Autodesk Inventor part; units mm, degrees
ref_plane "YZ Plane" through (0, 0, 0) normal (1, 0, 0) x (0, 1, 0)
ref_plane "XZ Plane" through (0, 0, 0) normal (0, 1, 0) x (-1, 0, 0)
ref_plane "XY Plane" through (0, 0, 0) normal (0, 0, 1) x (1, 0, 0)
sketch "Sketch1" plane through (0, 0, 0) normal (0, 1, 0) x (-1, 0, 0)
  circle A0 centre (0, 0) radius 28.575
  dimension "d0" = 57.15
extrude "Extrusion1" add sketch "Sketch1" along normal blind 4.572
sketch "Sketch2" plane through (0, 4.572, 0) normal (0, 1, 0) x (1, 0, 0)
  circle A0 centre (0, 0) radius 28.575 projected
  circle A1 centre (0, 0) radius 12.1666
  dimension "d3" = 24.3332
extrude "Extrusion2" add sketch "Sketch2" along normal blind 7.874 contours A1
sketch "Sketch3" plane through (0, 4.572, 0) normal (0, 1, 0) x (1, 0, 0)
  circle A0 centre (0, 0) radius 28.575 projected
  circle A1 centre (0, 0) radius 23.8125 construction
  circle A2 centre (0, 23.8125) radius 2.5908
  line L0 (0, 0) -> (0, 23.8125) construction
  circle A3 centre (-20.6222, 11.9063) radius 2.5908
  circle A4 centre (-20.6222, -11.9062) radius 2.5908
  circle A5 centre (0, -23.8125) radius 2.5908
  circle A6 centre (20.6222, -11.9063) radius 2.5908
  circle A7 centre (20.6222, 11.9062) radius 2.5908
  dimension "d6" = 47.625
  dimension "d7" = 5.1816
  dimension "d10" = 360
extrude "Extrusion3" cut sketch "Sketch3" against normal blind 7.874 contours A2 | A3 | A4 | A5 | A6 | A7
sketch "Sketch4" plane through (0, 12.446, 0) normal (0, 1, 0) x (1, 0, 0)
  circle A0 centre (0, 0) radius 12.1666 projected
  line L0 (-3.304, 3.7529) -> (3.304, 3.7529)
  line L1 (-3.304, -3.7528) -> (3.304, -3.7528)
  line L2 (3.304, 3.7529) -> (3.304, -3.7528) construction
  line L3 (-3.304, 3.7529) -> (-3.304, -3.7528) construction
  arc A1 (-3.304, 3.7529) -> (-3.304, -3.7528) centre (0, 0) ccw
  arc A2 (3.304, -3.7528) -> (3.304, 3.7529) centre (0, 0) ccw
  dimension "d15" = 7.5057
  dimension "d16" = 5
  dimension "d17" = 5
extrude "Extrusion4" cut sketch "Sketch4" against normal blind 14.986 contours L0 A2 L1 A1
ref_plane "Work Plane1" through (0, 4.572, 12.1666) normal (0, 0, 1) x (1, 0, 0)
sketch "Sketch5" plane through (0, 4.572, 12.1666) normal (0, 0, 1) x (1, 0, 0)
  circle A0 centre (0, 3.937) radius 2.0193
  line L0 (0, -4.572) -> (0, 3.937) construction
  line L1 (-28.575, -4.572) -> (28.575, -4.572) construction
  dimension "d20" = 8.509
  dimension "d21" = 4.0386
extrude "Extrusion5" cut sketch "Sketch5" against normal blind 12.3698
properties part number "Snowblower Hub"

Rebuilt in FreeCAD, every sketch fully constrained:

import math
import FreeCAD as App
import Part
import Sketcher

V = App.Vector
Q = App.Units.Quantity

doc = App.newDocument("Part")
body = doc.addObject("PartDesign::Body", "Body")

# Sketch on XZ plane
sketch1 = body.newObject("Sketcher::SketchObject", "Sketch")
sketch1.AttachmentSupport = (doc.getObject("XZ_Plane"), [""])
sketch1.MapMode = "FlatFace"
sketch1.addGeometry(Part.Circle(V(0, 0, 0), V(0, 0, 1), 28.575), False)
sketch1.addConstraint([
    Sketcher.Constraint("Coincident", 0, 3, -1, 1),
    Sketcher.Constraint("Diameter", 0, Q("2.25 in")),
])
pad1 = body.newObject("PartDesign::Pad", "Pad")
pad1.Profile = sketch1
pad1.Length = Q("0.18 in")
pad1.Reversed = True

# Sketch on XZ plane
sketch2 = body.newObject("Sketcher::SketchObject", "Sketch001")
sketch2.AttachmentSupport = (doc.getObject("XZ_Plane"), [""])
sketch2.MapMode = "FlatFace"
sketch2.AttachmentOffset = App.Placement(V(0, 0, -0.18 * 25.4), App.Rotation())
sketch2.addGeometry(Part.Circle(V(0, 0, 0), V(0, 0, 1), 12.1666), False)
sketch2.addConstraint([
    Sketcher.Constraint("Coincident", 0, 3, -1, 1),
    Sketcher.Constraint("Diameter", 0, Q("0.958 in")),
])
pad2 = body.newObject("PartDesign::Pad", "Pad001")
pad2.Profile = sketch2
pad2.Length = Q("0.31 in")
pad2.Reversed = True

# Sketch on XZ plane
sketch3 = body.newObject("Sketcher::SketchObject", "Sketch002")
sketch3.AttachmentSupport = (doc.getObject("XZ_Plane"), [""])
sketch3.MapMode = "FlatFace"
sketch3.AttachmentOffset = App.Placement(V(0, 0, -0.18 * 25.4), App.Rotation())
sketch3.addGeometry([
    Part.Circle(V(0, -23.8125, 0), V(0, 0, 1), 2.5908),  # 0
    Part.Circle(V(-20.6222, -11.9063, 0), V(0, 0, 1), 2.5908),  # 1
    Part.Circle(V(-20.6222, 11.9062, 0), V(0, 0, 1), 2.5908),  # 2
    Part.Circle(V(0, 23.8125, 0), V(0, 0, 1), 2.5908),  # 3
    Part.Circle(V(20.6222, 11.9063, 0), V(0, 0, 1), 2.5908),  # 4
    Part.Circle(V(20.6222, -11.9062, 0), V(0, 0, 1), 2.5908),  # 5
], False)
sketch3.addConstraint([
    Sketcher.Constraint("Equal", 0, 1),
    Sketcher.Constraint("Equal", 1, 2),
    Sketcher.Constraint("Equal", 2, 3),
    Sketcher.Constraint("Equal", 3, 4),
    Sketcher.Constraint("Equal", 4, 5),
    Sketcher.Constraint("Symmetric", 0, 3, 3, 3, -1, 1),
    Sketcher.Constraint("Symmetric", 1, 3, 4, 3, -1, 1),
    Sketcher.Constraint("Symmetric", 2, 3, 5, 3, -1, 1),
    Sketcher.Constraint("Symmetric", 2, 3, 4, 3, -2),
    Sketcher.Constraint("PointOnObject", 0, 3, -2),
    Sketcher.Constraint("Diameter", 0, Q("0.204 in")),
    Sketcher.Constraint("DistanceY", 0, 3, 3, 3, Q("1.875 in")),
    Sketcher.Constraint("DistanceY", 1, 3, -1, 1, Q("0.468752 in")),
    Sketcher.Constraint("DistanceX", 1, 3, -1, 1, Q("0.8119 in")),
])
pocket1 = body.newObject("PartDesign::Pocket", "Pocket")
pocket1.Profile = sketch3
pocket1.Length = Q("0.31 in")
pocket1.Reversed = True

# Sketch on XZ plane
sketch4 = body.newObject("Sketcher::SketchObject", "Sketch003")
sketch4.AttachmentSupport = (doc.getObject("XZ_Plane"), [""])
sketch4.MapMode = "FlatFace"
sketch4.AttachmentOffset = App.Placement(V(0, 0, -0.49 * 25.4), App.Rotation())
sketch4.addGeometry([
    Part.LineSegment(V(3.304, -3.7529, 0), V(-3.304, -3.7529, 0)),
    Part.ArcOfCircle(Part.Circle(V(0, 0, 0), V(0, 0, 1), 4.999992), math.radians(131.360991), math.radians(228.639766)),
    Part.LineSegment(V(-3.304, 3.7528, 0), V(3.304, 3.7528, 0)),
    Part.ArcOfCircle(Part.Circle(V(0, 0, 0), V(0, 0, 1), 5.000067), math.radians(-48.639766), math.radians(48.639009)),
], False)
sketch4.addConstraint([
    Sketcher.Constraint("Coincident", 0, 2, 1, 2),
    Sketcher.Constraint("Coincident", 1, 1, 2, 1),
    Sketcher.Constraint("Coincident", 2, 2, 3, 2),
    Sketcher.Constraint("Coincident", 3, 1, 0, 1),
    Sketcher.Constraint("Horizontal", 0),
    Sketcher.Constraint("Horizontal", 2),
    Sketcher.Constraint("Coincident", 1, 3, -1, 1),
    Sketcher.Constraint("Coincident", 3, 3, -1, 1),
    Sketcher.Constraint("Equal", 1, 3),
    Sketcher.Constraint("Vertical", 0, 2, 1, 1),
    Sketcher.Constraint("Radius", 1, Q("5 mm")),
    Sketcher.Constraint("DistanceY", 0, 2, 1, 1, Q("0.2955 in")),
])
pocket2 = body.newObject("PartDesign::Pocket", "Pocket001")
pocket2.Profile = sketch4
pocket2.Length = Q("0.59 in")
pocket2.Reversed = True

# Sketch on XY plane
sketch5 = body.newObject("Sketcher::SketchObject", "Sketch004")
sketch5.AttachmentSupport = (doc.getObject("XY_Plane"), [""])
sketch5.MapMode = "FlatFace"
sketch5.AttachmentOffset = App.Placement(V(0, 0, 0.479 * 25.4), App.Rotation())
sketch5.addGeometry(Part.Circle(V(0, 8.509, 0), V(0, 0, 1), 2.0193), False)
sketch5.addConstraint([
    Sketcher.Constraint("PointOnObject", 0, 3, -2),
    Sketcher.Constraint("Diameter", 0, Q("0.159 in")),
    Sketcher.Constraint("DistanceY", -1, 1, 0, 3, Q("0.335 in")),
])
pocket3 = body.newObject("PartDesign::Pocket", "Pocket002")
pocket3.Profile = sketch5
pocket3.Length = Q("0.487 in")

doc.recompute()
